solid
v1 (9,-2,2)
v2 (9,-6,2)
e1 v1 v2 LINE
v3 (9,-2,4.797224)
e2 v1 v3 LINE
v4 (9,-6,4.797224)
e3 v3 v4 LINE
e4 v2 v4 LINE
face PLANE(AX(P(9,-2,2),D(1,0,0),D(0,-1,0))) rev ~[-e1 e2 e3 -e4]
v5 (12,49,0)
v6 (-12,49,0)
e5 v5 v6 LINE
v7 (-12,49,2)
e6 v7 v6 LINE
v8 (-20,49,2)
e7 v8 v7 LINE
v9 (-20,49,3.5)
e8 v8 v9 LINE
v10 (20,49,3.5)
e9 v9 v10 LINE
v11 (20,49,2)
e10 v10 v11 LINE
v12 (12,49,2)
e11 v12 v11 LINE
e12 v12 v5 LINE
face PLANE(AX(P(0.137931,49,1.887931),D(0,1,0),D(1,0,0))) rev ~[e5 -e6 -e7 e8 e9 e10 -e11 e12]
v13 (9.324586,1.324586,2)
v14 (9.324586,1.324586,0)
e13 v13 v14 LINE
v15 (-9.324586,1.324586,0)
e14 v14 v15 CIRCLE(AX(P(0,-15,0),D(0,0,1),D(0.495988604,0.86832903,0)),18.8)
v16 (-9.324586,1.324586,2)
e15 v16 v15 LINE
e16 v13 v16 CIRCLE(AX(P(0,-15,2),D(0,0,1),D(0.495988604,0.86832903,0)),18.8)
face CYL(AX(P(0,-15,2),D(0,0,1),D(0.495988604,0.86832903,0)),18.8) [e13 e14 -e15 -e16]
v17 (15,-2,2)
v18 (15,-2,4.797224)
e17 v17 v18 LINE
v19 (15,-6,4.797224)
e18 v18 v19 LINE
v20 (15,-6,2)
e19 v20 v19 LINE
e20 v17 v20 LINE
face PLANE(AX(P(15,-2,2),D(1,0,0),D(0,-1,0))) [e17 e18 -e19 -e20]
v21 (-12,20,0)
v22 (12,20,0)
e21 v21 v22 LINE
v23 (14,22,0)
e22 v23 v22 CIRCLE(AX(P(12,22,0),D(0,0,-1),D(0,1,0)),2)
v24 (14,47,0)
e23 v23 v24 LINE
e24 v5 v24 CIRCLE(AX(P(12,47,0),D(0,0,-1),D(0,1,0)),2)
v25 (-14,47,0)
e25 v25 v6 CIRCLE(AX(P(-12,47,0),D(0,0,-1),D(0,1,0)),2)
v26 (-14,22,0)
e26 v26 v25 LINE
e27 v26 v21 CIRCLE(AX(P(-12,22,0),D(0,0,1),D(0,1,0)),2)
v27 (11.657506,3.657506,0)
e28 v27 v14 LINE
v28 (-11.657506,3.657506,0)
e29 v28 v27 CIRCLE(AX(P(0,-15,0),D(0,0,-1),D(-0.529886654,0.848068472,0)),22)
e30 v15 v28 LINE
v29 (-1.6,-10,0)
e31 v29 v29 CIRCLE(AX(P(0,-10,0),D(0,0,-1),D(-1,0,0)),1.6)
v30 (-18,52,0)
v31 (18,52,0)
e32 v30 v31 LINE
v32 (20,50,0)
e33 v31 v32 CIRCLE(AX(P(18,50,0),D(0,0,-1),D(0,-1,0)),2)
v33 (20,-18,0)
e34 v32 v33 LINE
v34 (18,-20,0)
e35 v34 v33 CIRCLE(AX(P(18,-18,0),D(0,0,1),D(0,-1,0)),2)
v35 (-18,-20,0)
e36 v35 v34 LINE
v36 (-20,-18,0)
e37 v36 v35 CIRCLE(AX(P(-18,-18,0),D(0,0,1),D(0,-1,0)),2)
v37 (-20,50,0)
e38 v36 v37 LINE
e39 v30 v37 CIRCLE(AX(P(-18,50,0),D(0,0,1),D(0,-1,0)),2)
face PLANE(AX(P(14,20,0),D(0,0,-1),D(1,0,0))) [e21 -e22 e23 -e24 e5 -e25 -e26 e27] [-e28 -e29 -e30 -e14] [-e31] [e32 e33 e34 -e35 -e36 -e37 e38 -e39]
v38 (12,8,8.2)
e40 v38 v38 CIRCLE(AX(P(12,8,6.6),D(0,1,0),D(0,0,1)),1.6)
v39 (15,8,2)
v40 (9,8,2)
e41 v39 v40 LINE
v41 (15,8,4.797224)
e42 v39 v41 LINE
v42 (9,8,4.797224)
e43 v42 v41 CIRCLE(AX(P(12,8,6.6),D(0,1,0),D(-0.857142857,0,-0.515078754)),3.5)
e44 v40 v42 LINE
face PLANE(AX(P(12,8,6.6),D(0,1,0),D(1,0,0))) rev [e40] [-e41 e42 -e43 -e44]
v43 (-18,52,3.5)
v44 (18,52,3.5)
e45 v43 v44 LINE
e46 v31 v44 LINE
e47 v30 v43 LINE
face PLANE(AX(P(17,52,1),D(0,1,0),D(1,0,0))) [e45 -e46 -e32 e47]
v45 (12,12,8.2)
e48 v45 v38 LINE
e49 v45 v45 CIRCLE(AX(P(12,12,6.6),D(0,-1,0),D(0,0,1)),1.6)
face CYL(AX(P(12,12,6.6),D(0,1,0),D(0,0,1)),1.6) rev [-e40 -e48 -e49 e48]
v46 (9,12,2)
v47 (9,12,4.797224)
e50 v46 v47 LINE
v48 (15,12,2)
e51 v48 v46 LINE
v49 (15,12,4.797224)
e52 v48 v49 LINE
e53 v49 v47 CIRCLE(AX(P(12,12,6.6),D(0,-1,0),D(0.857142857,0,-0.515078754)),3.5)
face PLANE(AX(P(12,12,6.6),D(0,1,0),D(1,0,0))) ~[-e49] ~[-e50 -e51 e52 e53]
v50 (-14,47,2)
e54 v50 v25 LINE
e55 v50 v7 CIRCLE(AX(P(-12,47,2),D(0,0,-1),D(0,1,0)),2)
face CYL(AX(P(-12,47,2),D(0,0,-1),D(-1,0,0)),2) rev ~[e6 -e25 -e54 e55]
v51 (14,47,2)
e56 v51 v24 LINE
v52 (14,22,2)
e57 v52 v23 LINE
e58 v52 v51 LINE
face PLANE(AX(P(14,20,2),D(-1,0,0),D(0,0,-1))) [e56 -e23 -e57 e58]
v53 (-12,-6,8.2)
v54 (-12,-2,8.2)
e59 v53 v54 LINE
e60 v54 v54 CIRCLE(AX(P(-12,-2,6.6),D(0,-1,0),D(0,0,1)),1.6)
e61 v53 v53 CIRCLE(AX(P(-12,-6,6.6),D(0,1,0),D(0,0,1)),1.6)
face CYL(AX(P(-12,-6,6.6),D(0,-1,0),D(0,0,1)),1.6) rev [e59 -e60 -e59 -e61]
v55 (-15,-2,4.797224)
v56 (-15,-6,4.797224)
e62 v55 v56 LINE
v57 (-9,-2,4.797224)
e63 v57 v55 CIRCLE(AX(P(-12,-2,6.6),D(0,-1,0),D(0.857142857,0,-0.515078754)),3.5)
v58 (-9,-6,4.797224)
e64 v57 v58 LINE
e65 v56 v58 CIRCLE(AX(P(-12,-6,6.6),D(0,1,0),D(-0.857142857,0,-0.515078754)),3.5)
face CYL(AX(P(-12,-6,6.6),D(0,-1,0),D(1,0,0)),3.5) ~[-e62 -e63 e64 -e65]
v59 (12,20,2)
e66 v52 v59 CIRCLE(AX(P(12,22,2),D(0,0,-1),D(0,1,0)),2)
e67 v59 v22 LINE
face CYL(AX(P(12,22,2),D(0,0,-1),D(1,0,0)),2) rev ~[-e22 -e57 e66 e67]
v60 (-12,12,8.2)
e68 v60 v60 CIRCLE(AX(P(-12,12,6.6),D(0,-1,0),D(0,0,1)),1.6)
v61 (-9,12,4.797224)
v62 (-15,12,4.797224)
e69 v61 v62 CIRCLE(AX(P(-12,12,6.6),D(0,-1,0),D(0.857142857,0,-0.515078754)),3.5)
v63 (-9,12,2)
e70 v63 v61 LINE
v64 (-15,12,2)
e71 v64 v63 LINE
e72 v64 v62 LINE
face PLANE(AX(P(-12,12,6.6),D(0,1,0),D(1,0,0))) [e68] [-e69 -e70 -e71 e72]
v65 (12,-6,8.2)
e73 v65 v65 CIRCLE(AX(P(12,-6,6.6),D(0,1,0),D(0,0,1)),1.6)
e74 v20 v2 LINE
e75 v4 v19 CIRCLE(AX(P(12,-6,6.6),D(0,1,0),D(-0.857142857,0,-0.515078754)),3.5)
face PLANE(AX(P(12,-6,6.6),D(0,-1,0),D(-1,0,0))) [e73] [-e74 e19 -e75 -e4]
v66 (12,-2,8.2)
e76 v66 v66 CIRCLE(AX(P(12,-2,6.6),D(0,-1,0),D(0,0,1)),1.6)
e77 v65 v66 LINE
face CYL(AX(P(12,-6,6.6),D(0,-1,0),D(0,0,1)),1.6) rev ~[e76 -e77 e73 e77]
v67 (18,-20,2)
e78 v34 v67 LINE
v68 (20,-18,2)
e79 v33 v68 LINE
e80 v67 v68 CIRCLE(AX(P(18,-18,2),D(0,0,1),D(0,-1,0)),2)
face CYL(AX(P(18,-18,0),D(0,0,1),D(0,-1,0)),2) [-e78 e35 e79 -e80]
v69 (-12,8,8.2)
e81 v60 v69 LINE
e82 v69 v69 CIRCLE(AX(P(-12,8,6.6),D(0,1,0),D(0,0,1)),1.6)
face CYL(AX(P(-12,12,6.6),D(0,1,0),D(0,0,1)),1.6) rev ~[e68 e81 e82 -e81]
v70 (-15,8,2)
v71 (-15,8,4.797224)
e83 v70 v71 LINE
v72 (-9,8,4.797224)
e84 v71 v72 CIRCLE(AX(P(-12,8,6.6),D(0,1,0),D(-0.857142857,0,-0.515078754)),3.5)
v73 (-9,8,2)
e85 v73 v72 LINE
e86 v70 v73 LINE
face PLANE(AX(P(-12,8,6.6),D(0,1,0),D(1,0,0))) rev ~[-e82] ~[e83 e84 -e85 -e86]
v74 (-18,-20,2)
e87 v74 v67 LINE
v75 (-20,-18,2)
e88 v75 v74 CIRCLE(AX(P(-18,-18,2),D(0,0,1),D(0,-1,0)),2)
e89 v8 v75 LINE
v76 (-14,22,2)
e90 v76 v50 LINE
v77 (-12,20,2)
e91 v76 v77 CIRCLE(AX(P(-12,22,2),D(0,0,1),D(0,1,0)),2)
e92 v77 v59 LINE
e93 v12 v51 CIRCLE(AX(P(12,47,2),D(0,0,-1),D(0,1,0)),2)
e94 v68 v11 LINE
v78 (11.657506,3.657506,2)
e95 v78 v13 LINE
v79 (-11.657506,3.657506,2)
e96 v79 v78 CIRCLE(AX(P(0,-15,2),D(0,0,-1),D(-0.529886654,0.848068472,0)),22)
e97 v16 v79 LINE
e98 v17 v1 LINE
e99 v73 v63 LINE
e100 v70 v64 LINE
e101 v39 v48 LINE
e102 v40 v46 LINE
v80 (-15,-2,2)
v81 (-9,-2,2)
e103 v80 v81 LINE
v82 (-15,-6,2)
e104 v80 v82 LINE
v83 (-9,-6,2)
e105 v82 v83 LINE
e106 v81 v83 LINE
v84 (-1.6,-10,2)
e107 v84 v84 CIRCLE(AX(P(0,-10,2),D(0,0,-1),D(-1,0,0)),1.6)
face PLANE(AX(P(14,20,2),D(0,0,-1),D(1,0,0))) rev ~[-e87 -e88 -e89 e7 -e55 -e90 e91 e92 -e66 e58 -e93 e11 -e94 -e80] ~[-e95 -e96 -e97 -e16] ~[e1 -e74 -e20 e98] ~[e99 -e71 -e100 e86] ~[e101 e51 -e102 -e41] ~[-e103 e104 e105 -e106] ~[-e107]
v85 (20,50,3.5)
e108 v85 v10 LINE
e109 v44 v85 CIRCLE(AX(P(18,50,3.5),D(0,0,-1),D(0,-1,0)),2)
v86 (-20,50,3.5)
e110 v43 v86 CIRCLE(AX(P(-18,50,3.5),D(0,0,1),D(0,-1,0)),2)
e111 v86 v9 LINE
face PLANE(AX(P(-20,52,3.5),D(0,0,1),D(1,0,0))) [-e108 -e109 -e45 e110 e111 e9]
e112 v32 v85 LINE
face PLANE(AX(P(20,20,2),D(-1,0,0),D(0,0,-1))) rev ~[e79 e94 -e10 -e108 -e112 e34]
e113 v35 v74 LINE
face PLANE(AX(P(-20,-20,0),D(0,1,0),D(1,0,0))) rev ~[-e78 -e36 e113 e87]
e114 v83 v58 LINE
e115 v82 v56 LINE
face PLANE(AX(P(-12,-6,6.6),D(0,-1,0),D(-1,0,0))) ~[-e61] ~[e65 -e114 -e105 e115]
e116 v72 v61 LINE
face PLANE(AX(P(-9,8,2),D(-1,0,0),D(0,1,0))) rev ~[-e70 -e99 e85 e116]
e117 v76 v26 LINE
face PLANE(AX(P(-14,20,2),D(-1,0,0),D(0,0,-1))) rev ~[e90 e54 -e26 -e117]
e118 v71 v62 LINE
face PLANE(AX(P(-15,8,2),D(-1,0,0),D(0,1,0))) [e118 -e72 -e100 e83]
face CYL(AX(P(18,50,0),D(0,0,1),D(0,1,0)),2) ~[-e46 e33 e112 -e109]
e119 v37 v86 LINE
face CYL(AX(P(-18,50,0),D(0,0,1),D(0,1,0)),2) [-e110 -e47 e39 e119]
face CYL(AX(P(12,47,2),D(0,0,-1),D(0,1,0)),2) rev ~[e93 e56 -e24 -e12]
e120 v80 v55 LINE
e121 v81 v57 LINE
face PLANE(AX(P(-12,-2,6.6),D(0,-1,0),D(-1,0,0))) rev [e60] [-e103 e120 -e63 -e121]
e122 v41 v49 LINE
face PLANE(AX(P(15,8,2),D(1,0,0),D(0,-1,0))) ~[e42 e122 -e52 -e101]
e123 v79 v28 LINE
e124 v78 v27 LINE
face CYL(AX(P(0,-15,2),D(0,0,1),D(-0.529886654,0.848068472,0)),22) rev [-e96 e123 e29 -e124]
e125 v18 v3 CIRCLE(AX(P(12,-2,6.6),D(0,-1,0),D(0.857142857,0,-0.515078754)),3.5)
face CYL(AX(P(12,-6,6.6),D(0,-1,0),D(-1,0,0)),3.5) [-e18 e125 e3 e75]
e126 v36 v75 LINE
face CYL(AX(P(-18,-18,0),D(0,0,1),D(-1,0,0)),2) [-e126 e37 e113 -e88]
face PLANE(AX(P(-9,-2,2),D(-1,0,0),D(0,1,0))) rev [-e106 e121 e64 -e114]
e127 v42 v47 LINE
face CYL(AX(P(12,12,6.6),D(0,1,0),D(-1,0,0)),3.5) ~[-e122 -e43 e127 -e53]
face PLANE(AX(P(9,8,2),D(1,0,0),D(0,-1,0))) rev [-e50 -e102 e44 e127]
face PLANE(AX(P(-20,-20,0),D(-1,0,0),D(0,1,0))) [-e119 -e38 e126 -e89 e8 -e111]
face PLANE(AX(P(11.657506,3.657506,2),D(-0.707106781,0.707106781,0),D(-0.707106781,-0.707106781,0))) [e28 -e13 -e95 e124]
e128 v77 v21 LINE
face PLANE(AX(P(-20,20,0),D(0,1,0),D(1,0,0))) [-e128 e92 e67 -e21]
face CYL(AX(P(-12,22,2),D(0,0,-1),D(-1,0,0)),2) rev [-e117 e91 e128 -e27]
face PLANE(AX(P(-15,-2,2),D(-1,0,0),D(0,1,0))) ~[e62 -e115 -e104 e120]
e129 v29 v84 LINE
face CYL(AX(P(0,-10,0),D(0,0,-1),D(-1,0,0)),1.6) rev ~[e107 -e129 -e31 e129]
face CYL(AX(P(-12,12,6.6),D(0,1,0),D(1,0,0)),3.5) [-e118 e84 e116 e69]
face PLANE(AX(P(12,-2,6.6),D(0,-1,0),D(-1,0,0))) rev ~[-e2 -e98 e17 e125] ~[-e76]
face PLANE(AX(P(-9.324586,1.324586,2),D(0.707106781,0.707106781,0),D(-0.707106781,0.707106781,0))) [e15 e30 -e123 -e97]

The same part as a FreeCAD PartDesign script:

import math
import FreeCAD as App
import Part
import Sketcher

V = App.Vector


def edges_at(feature, points):
    """Names of the edges that pass closest to the given points."""
    edges = feature.Shape.Edges
    near = lambda p: min(range(len(edges)), key=lambda i: edges[i].distToShape(Part.Vertex(*p))[0])
    return sorted({f"Edge{near(p) + 1}" for p in points})


def add_polygon(sketch, points):
    """Adds a closed chain of lines whose ends are joined by coincident constraints."""
    first, n = sketch.GeometryCount, len(points)
    for a, b in zip(points, points[1:] + points[:1]):
        sketch.addGeometry(Part.LineSegment(App.Vector(*a, 0), App.Vector(*b, 0)), False)
    for i in range(n):
        sketch.addConstraint(Sketcher.Constraint("Coincident", first + i, 2, first + (i + 1) % n, 1))

doc = App.newDocument("Part")
params = doc.addObject("Spreadsheet::Sheet", "Params")
for row, (alias, value) in enumerate([
    ("sketch1_width", "40 mm"),
    ("pad1_length", "2 mm"),
    ("sketch2_width", "6 mm"),
    ("sketch2_height", "4 mm"),
    ("pad2_length", "3 mm"),
    ("sketch3_diameter", "7 mm"),
    ("sketch3_diameter2", "3.2 mm"),
    ("pad3_length", "4 mm"),
    ("sketch4_width", "6 mm"),
    ("sketch4_height", "4 mm"),
    ("pad4_length", "3 mm"),
    ("sketch5_diameter", "7 mm"),
    ("sketch5_diameter2", "3.2 mm"),
    ("pad5_length", "4 mm"),
    ("sketch6_radius", "22 mm"),
    ("sketch6_radius2", "18.8 mm"),
    ("pocket1_length", "2 mm"),
    ("sketch7_diameter", "3.2 mm"),
    ("pocket2_length", "2 mm"),
    ("sketch8_width", "6 mm"),
    ("sketch8_height", "2 mm"),
    ("pad6_length", "32 mm"),
    ("sketch9_width", "40 mm"),
    ("sketch9_height", "3.5 mm"),
    ("pad7_length", "3 mm"),
    ("fillet_radius", "2 mm"),
], start=1):
    params.set(f"A{row}", alias)
    params.set(f"B{row}", "=" + value)
    params.setAlias(f"B{row}", alias)

body = doc.addObject("PartDesign::Body", "Body")

sketch1 = body.newObject("Sketcher::SketchObject", "Sketch")
sketch1.AttachmentSupport = (doc.getObject("XY_Plane"), [""])
sketch1.MapMode = "FlatFace"
add_polygon(sketch1, [(-20, 20), (-20, -20), (20, -20), (20, 20)])
sketch1.addConstraint([
    Sketcher.Constraint("Vertical", 0),
    Sketcher.Constraint("Horizontal", 1),
    Sketcher.Constraint("Vertical", 2),
    Sketcher.Constraint("Horizontal", 3),
    Sketcher.Constraint("Symmetric", 0, 2, 2, 2, -1, 1),
    Sketcher.Constraint("Equal", 3, 0),
    Sketcher.Constraint("DistanceX", 1, 1, 1, 2, 40.0),
])
sketch1.setExpression("Constraints[10]", "Params.sketch1_width")
pad1 = body.newObject("PartDesign::Pad", "Pad")
pad1.Profile = sketch1
pad1.setExpression("Length", "Params.pad1_length")

sketch2 = body.newObject("Sketcher::SketchObject", "Sketch001")
sketch2.AttachmentSupport = (doc.getObject("XY_Plane"), [""])
sketch2.MapMode = "FlatFace"
sketch2.AttachmentOffset = App.Placement(V(0, 0, 2), App.Rotation())
add_polygon(sketch2, [(-15, 12), (-15, 8), (-9, 8), (-9, 12)])
sketch2.addConstraint([
    Sketcher.Constraint("Vertical", 0),
    Sketcher.Constraint("Horizontal", 1),
    Sketcher.Constraint("Vertical", 2),
    Sketcher.Constraint("Horizontal", 3),
    Sketcher.Constraint("DistanceX", 1, 1, 1, 2, 6.0),
    Sketcher.Constraint("DistanceY", 0, 2, 0, 1, 4.0),
    Sketcher.Constraint("DistanceX", 0, 2, -1, 1, 15.0),
    Sketcher.Constraint("DistanceY", -1, 1, 0, 2, 8.0),
])
sketch2.setExpression("Constraints[8]", "Params.sketch2_width")
sketch2.setExpression("Constraints[9]", "Params.sketch2_height")
pad2 = body.newObject("PartDesign::Pad", "Pad001")
pad2.Profile = sketch2
pad2.setExpression("Length", "Params.pad2_length")

sketch3 = body.newObject("Sketcher::SketchObject", "Sketch002")
sketch3.AttachmentSupport = (doc.getObject("XZ_Plane"), [""])
sketch3.MapMode = "FlatFace"
sketch3.AttachmentOffset = App.Placement(V(0, 0, -12), App.Rotation())
sketch3.addGeometry([
    Part.Circle(V(-12, 6.6, 0), V(0, 0, 1), 3.5),
    Part.Circle(V(-12, 6.6, 0), V(0, 0, 1), 1.6),
], False)
sketch3.addConstraint([
    Sketcher.Constraint("Coincident", 1, 3, 0, 3),
    Sketcher.Constraint("Diameter", 0, 7.0),
    Sketcher.Constraint("Diameter", 1, 3.2),
    Sketcher.Constraint("DistanceX", 0, 3, -1, 1, 12.0),
    Sketcher.Constraint("DistanceY", -1, 1, 0, 3, 6.6),
])
sketch3.setExpression("Constraints[1]", "Params.sketch3_diameter")
sketch3.setExpression("Constraints[2]", "Params.sketch3_diameter2")
pad3 = body.newObject("PartDesign::Pad", "Pad002")
pad3.Profile = sketch3
pad3.setExpression("Length", "Params.pad3_length")
doc.recompute()

mirrored = body.newObject("PartDesign::Mirrored", "Mirrored")
mirrored.Originals = [pad2, pad3]
mirrored.MirrorPlane = (doc.getObject("YZ_Plane"), [""])
body.Tip = mirrored
doc.recompute()

datumplane = body.newObject("PartDesign::Plane", "DatumPlane")
datumplane.AttachmentSupport = (doc.getObject("XZ_Plane"), [""])
datumplane.MapMode = "FlatFace"
datumplane.AttachmentOffset = App.Placement(V(0, 0, -3), App.Rotation())
mirrored2 = body.newObject("PartDesign::Mirrored", "Mirrored001")
mirrored2.Originals = [pad2, pad3]
mirrored2.MirrorPlane = (datumplane, [""])
body.Tip = mirrored2

sketch4 = body.newObject("Sketcher::SketchObject", "Sketch003")
sketch4.AttachmentSupport = (doc.getObject("XY_Plane"), [""])
sketch4.MapMode = "FlatFace"
sketch4.AttachmentOffset = App.Placement(V(0, 0, 2), App.Rotation())
add_polygon(sketch4, [(15, -6), (15, -2), (9, -2), (9, -6)])
sketch4.addConstraint([
    Sketcher.Constraint("Vertical", 0),
    Sketcher.Constraint("Horizontal", 1),
    Sketcher.Constraint("Vertical", 2),
    Sketcher.Constraint("Horizontal", 3),
    Sketcher.Constraint("DistanceX", 1, 2, 1, 1, 6.0),
    Sketcher.Constraint("DistanceY", 0, 1, 0, 2, 4.0),
    Sketcher.Constraint("DistanceX", -1, 1, 0, 2, 15.0),
    Sketcher.Constraint("DistanceY", 0, 2, -1, 1, 2.0),
])
sketch4.setExpression("Constraints[8]", "Params.sketch4_width")
sketch4.setExpression("Constraints[9]", "Params.sketch4_height")
pad4 = body.newObject("PartDesign::Pad", "Pad003")
pad4.Profile = sketch4
pad4.setExpression("Length", "Params.pad4_length")

sketch5 = body.newObject("Sketcher::SketchObject", "Sketch004")
sketch5.AttachmentSupport = (doc.getObject("XZ_Plane"), [""])
sketch5.MapMode = "FlatFace"
sketch5.AttachmentOffset = App.Placement(V(0, 0, 6), App.Rotation())
sketch5.addGeometry([
    Part.Circle(V(12, 6.6, 0), V(0, 0, 1), 3.5),
    Part.Circle(V(12, 6.6, 0), V(0, 0, 1), 1.6),
], False)
sketch5.addConstraint([
    Sketcher.Constraint("Coincident", 1, 3, 0, 3),
    Sketcher.Constraint("Diameter", 0, 7.0),
    Sketcher.Constraint("Diameter", 1, 3.2),
    Sketcher.Constraint("DistanceX", -1, 1, 0, 3, 12.0),
    Sketcher.Constraint("DistanceY", -1, 1, 0, 3, 6.6),
])
sketch5.setExpression("Constraints[1]", "Params.sketch5_diameter")
sketch5.setExpression("Constraints[2]", "Params.sketch5_diameter2")
pad5 = body.newObject("PartDesign::Pad", "Pad004")
pad5.Profile = sketch5
pad5.setExpression("Length", "Params.pad5_length")
pad5.Reversed = True

sketch6 = body.newObject("Sketcher::SketchObject", "Sketch005")
sketch6.AttachmentSupport = (doc.getObject("XY_Plane"), [""])
sketch6.MapMode = "FlatFace"
sketch6.AttachmentOffset = App.Placement(V(0, 0, 2), App.Rotation())
sketch6.addGeometry([
    Part.ArcOfCircle(Part.Circle(V(0, -15, 0), V(0, 0, 1), 18.8), math.radians(60), math.radians(120)),
    Part.LineSegment(V(9.3, 1.3, 0), V(11.7, 3.7, 0)),
    Part.ArcOfCircle(Part.Circle(V(0, -15, 0), V(0, 0, 1), 22), math.radians(58), math.radians(122)),
    Part.LineSegment(V(-11.7, 3.7, 0), V(-9.3, 1.3, 0)),
], False)
sketch6.addConstraint([
    Sketcher.Constraint("Coincident", 0, 1, 1, 1),
    Sketcher.Constraint("Coincident", 1, 2, 2, 1),
    Sketcher.Constraint("Coincident", 2, 2, 3, 1),
    Sketcher.Constraint("Coincident", 3, 2, 0, 2),
    Sketcher.Constraint("Coincident", 2, 3, 0, 3),
    Sketcher.Constraint("Symmetric", 1, 2, 2, 2, -2),
    Sketcher.Constraint("Perpendicular", 1, 3),
    Sketcher.Constraint("Horizontal", 0, 1, 3, 2),
    Sketcher.Constraint("Radius", 2, 22.0),
    Sketcher.Constraint("Radius", 0, 18.8),
    Sketcher.Constraint("DistanceY", 0, 3, -1, 1, 15.0),
    Sketcher.Constraint("DistanceX", 3, 2, 0, 1, 18.649172),
])
sketch6.setExpression("Constraints[8]", "Params.sketch6_radius")
sketch6.setExpression("Constraints[9]", "Params.sketch6_radius2")
pocket1 = body.newObject("PartDesign::Pocket", "Pocket")
pocket1.Profile = sketch6
pocket1.setExpression("Length", "Params.pocket1_length")

sketch7 = body.newObject("Sketcher::SketchObject", "Sketch006")
sketch7.AttachmentSupport = (doc.getObject("XY_Plane"), [""])
sketch7.MapMode = "FlatFace"
sketch7.addGeometry(Part.Circle(V(0, -10, 0), V(0, 0, 1), 1.6), False)
sketch7.addConstraint([
    Sketcher.Constraint("PointOnObject", 0, 3, -2),
    Sketcher.Constraint("Diameter", 0, 3.2),
    Sketcher.Constraint("DistanceY", 0, 3, -1, 1, 10.0),
])
sketch7.setExpression("Constraints[1]", "Params.sketch7_diameter")
pocket2 = body.newObject("PartDesign::Pocket", "Pocket001")
pocket2.Profile = sketch7
pocket2.setExpression("Length", "Params.pocket2_length")
pocket2.Reversed = True

sketch8 = body.newObject("Sketcher::SketchObject", "Sketch007")
sketch8.AttachmentSupport = (doc.getObject("XZ_Plane"), [""])
sketch8.MapMode = "FlatFace"
sketch8.AttachmentOffset = App.Placement(V(0, 0, -20), App.Rotation())
add_polygon(sketch8, [(14, 0), (14, 2), (20, 2), (20, 0)])
add_polygon(sketch8, [(-20, 0), (-20, 2), (-14, 2), (-14, 0)])
sketch8.addConstraint([
    Sketcher.Constraint("Vertical", 0),
    Sketcher.Constraint("Horizontal", 1),
    Sketcher.Constraint("Vertical", 2),
    Sketcher.Constraint("Horizontal", 3),
    Sketcher.Constraint("Vertical", 4),
    Sketcher.Constraint("Horizontal", 5),
    Sketcher.Constraint("Vertical", 6),
    Sketcher.Constraint("Horizontal", 7),
    Sketcher.Constraint("Symmetric", 3, 2, 6, 2, -1, 1),
    Sketcher.Constraint("Symmetric", 1, 2, 4, 2, -2),
    Sketcher.Constraint("PointOnObject", 2, 2, -1),
    Sketcher.Constraint("DistanceX", 1, 1, 1, 2, 6.0),
    Sketcher.Constraint("DistanceY", 0, 1, 0, 2, 2.0),
    Sketcher.Constraint("DistanceX", -1, 1, 0, 2, 14.0),
])
sketch8.setExpression("Constraints[19]", "Params.sketch8_width")
sketch8.setExpression("Constraints[20]", "Params.sketch8_height")
pad6 = body.newObject("PartDesign::Pad", "Pad005")
pad6.Profile = sketch8
pad6.setExpression("Length", "Params.pad6_length")
pad6.Reversed = True

sketch9 = body.newObject("Sketcher::SketchObject", "Sketch008")
sketch9.AttachmentSupport = (doc.getObject("XZ_Plane"), [""])
sketch9.MapMode = "FlatFace"
sketch9.AttachmentOffset = App.Placement(V(0, 0, -52), App.Rotation())
add_polygon(sketch9, [(20, 0), (-20, 0), (-20, 3.5), (20, 3.5)])
sketch9.addConstraint([
    Sketcher.Constraint("Horizontal", 0),
    Sketcher.Constraint("Vertical", 1),
    Sketcher.Constraint("Horizontal", 2),
    Sketcher.Constraint("Vertical", 3),
    Sketcher.Constraint("Symmetric", 0, 2, 3, 2, -1, 1),
    Sketcher.Constraint("DistanceX", 0, 2, 0, 1, 40.0),
    Sketcher.Constraint("DistanceY", 1, 1, 1, 2, 3.5),
])
sketch9.setExpression("Constraints[9]", "Params.sketch9_width")
sketch9.setExpression("Constraints[10]", "Params.sketch9_height")
pad7 = body.newObject("PartDesign::Pad", "Pad006")
pad7.Profile = sketch9
pad7.setExpression("Length", "Params.pad7_length")
doc.recompute()

fillet = body.newObject("PartDesign::Fillet", "Fillet")
fillet.Base = (pad7, edges_at(pad7, [
    (20, 52, 1.75),
    (14, 20, 1),
    (-20, 52, 1.75),
    (-14, 20, 1),
    (-14, 49, 1),
    (14, 49, 1),
    (20, -20, 1),
    (-20, -20, 1),
]))
fillet.setExpression("Radius", "Params.fillet_radius")

doc.recompute()
